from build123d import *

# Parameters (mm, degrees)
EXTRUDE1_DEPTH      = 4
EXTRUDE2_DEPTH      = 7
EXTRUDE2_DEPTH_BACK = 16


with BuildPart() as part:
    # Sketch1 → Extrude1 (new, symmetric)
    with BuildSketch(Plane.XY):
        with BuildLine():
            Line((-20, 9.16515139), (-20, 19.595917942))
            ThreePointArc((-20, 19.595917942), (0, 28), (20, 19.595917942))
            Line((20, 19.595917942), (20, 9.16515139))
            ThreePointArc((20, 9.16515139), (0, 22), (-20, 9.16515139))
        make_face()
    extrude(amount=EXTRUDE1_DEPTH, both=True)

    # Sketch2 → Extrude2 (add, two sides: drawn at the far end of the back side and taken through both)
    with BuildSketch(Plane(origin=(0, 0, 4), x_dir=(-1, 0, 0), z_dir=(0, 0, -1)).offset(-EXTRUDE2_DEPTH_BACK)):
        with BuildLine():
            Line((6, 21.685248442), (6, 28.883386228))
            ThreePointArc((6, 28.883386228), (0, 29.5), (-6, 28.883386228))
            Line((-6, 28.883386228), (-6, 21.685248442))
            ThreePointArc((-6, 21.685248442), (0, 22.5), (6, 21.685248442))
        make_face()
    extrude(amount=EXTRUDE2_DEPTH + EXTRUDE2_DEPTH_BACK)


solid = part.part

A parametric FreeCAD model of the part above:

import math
import FreeCAD as App
import Part
import Sketcher

V = App.Vector

doc = App.newDocument("Part")
params = doc.addObject("Spreadsheet::Sheet", "Params")
for row, (alias, value) in enumerate([
    ("sketch1_radius", "22 mm"),
    ("sketch1_radius2", "28 mm"),
    ("pad1_length", "8 mm"),
    ("sketch2_radius", "29.5 mm"),
    ("sketch2_radius2", "22.5 mm"),
    ("pad2_length", "7 mm"),
    ("pad2_length2", "16 mm"),
], start=1):
    params.set(f"A{row}", alias)
    params.set(f"B{row}", "=" + value)
    params.setAlias(f"B{row}", alias)

body = doc.addObject("PartDesign::Body", "Body")

# Sketch on XY plane
sketch1 = doc.addObject("Sketcher::SketchObject", "Sketch")
body.addObject(sketch1)
sketch1.AttachmentSupport = (doc.XY_Plane, [""])
sketch1.MapMode = "FlatFace"
sketch1.addGeometry([
    Part.LineSegment(V(-20, 19.595918, 0), V(-20, 9.165151, 0)),
    Part.ArcOfCircle(Part.Circle(V(0, 0, 0), V(0, 0, 1), 22), math.radians(24.619977), math.radians(155.380023)),
    Part.LineSegment(V(20, 9.165151, 0), V(20, 19.595918, 0)),
    Part.ArcOfCircle(Part.Circle(V(0, 0, 0), V(0, 0, 1), 28), math.radians(44.415309), math.radians(135.584691)),
], False)
sketch1.addConstraint([
    Sketcher.Constraint("Coincident", 0, 2, 1, 2),
    Sketcher.Constraint("Coincident", 1, 1, 2, 1),
    Sketcher.Constraint("Coincident", 2, 2, 3, 1),
    Sketcher.Constraint("Coincident", 3, 2, 0, 1),
    Sketcher.Constraint("Vertical", 0),
    Sketcher.Constraint("Vertical", 2),
    Sketcher.Constraint("Coincident", 1, 3, -1, 1),
    Sketcher.Constraint("Coincident", 3, 3, -1, 1),
    Sketcher.Constraint("Horizontal", 0, 2, 1, 1),
    Sketcher.Constraint("Radius", 1, 22.0),
    Sketcher.Constraint("Radius", 3, 28.0),
    Sketcher.Constraint("DistanceX", 0, 2, -1, 1, 20.0),
])
sketch1.setExpression("Constraints[9]", "Params.sketch1_radius")
sketch1.setExpression("Constraints[10]", "Params.sketch1_radius2")
pad1 = doc.addObject("PartDesign::Pad", "Pad")
body.addObject(pad1)
pad1.Profile = sketch1
pad1.setExpression("Length", "Params.pad1_length")
pad1.Midplane = True

# Sketch on XY plane
sketch2 = doc.addObject("Sketcher::SketchObject", "Sketch001")
body.addObject(sketch2)
sketch2.AttachmentSupport = (doc.XY_Plane, [""])
sketch2.MapMode = "FlatFace"
sketch2.AttachmentOffset = App.Placement(V(0, 0, 4), App.Rotation())
sketch2.addGeometry([
    Part.LineSegment(V(-6, 21.685248, 0), V(-6, 28.883386, 0)),
    Part.ArcOfCircle(Part.Circle(V(0, 0, 0), V(0, 0, 1), 29.5), math.radians(78.264743), math.radians(101.735257)),
    Part.LineSegment(V(6, 28.883386, 0), V(6, 21.685248, 0)),
    Part.ArcOfCircle(Part.Circle(V(0, 0, 0), V(0, 0, 1), 22.5), math.radians(74.53399), math.radians(105.46601)),
], False)
sketch2.addConstraint([
    Sketcher.Constraint("Coincident", 0, 2, 1, 2),
    Sketcher.Constraint("Coincident", 1, 1, 2, 1),
    Sketcher.Constraint("Coincident", 2, 2, 3, 1),
    Sketcher.Constraint("Coincident", 3, 2, 0, 1),
    Sketcher.Constraint("Vertical", 0),
    Sketcher.Constraint("Vertical", 2),
    Sketcher.Constraint("Coincident", 1, 3, -1, 1),
    Sketcher.Constraint("Coincident", 3, 3, -1, 1),
    Sketcher.Constraint("Horizontal", 0, 2, 1, 1),
    Sketcher.Constraint("Radius", 1, 29.5),
    Sketcher.Constraint("Radius", 3, 22.5),
    Sketcher.Constraint("DistanceX", 0, 2, -1, 1, 6.0),
])
sketch2.setExpression("Constraints[9]", "Params.sketch2_radius")
sketch2.setExpression("Constraints[10]", "Params.sketch2_radius2")
pad2 = doc.addObject("PartDesign::Pad", "Pad001")
body.addObject(pad2)
pad2.Profile = sketch2
pad2.Type = "TwoLengths"
pad2.setExpression("Length", "Params.pad2_length")
pad2.setExpression("Length2", "Params.pad2_length2")
pad2.Reversed = True

doc.recompute()
